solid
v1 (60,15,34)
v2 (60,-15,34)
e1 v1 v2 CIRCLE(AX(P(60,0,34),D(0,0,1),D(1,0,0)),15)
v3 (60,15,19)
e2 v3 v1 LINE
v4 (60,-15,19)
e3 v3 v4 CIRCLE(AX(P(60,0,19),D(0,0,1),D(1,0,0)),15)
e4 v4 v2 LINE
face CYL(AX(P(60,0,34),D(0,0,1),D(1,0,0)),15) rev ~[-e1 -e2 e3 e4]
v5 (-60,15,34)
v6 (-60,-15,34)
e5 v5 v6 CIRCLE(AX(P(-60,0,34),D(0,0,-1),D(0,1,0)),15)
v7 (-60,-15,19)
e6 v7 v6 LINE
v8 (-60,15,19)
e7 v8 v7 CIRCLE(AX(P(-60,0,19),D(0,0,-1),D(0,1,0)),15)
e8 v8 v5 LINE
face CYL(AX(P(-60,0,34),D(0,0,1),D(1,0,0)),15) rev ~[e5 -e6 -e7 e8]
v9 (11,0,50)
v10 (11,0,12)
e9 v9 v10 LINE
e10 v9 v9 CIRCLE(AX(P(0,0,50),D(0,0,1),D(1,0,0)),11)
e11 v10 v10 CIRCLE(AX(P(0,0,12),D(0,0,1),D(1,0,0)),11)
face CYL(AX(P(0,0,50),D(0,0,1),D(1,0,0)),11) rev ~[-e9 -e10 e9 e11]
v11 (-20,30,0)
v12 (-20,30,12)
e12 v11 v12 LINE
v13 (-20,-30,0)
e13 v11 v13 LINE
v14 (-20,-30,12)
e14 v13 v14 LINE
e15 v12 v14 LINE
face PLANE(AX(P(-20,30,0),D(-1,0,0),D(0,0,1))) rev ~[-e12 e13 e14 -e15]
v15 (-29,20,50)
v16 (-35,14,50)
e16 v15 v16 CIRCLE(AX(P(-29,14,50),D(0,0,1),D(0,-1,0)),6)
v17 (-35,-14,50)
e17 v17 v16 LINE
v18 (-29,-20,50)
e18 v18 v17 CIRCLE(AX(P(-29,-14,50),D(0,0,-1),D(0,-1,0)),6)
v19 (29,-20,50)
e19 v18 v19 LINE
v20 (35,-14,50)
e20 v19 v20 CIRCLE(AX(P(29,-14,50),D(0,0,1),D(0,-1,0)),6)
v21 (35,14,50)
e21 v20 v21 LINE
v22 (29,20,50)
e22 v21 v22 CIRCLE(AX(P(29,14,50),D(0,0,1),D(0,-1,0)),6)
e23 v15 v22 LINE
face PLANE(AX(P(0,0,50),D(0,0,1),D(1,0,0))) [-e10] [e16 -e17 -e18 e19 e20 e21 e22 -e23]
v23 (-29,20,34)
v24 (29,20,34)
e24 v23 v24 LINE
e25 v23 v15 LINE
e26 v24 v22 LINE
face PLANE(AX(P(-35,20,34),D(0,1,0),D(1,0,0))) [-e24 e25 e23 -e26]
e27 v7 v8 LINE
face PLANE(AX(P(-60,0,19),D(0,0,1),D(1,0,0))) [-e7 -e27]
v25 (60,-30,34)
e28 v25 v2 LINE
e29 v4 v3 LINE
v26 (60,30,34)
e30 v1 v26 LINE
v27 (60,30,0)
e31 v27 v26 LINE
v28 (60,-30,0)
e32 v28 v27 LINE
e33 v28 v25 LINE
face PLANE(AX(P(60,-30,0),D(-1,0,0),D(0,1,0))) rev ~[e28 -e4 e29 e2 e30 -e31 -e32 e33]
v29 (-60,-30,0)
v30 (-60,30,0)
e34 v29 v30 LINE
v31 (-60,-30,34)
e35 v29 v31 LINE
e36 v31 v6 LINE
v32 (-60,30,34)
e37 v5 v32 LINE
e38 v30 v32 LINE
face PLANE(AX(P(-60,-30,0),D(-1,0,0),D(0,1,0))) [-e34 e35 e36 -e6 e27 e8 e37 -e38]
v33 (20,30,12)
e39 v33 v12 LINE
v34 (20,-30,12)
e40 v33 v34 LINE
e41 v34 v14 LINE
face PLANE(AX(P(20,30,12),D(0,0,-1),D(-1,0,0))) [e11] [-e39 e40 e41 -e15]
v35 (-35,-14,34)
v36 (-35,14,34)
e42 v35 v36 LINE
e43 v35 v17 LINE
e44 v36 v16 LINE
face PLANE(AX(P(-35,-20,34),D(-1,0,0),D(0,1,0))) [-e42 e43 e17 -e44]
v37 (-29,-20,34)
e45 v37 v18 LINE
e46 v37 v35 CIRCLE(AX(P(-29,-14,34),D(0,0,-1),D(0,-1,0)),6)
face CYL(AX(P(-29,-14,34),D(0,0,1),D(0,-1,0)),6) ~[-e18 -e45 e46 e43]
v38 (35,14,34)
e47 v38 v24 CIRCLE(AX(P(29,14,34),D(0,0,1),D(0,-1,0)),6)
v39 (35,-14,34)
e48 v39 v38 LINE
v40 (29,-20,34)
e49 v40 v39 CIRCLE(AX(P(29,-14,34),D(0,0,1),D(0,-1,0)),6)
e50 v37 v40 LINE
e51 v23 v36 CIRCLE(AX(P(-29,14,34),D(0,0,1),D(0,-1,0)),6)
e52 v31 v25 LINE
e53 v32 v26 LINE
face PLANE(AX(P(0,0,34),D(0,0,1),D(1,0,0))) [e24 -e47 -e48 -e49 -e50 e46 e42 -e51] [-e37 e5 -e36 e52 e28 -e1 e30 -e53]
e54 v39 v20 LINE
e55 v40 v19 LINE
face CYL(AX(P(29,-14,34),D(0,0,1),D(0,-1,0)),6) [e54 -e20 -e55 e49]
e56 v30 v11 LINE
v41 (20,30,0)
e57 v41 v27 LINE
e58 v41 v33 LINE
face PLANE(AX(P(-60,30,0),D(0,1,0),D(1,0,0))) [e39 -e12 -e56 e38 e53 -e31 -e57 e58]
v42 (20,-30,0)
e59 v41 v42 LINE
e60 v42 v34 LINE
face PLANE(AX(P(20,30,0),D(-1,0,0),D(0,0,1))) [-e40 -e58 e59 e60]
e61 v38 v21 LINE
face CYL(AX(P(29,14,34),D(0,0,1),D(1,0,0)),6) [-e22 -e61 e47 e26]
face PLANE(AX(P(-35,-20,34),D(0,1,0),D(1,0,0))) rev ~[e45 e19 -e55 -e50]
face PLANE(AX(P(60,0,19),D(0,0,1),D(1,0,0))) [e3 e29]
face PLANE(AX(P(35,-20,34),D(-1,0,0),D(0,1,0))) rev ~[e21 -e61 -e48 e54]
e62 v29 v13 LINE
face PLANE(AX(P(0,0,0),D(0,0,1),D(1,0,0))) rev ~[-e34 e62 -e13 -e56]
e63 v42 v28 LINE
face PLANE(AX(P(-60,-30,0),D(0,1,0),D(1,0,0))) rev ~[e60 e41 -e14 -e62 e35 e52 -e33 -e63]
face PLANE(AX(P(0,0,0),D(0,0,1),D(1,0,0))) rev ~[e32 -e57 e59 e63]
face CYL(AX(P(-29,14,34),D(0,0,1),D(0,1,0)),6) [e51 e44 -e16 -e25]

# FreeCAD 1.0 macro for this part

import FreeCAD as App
import Part
import Sketcher


def edges_at(feature, points):
    """Names of the edges that pass closest to the given points."""
    edges = feature.Shape.Edges
    near = lambda p: min(range(len(edges)), key=lambda i: edges[i].distToShape(Part.Vertex(*p))[0])
    return sorted({f"Edge{near(p) + 1}" for p in points})


def add_polygon(sketch, points):
    """Adds a closed chain of lines whose ends are joined by coincident constraints."""
    first, n = sketch.GeometryCount, len(points)
    for a, b in zip(points, points[1:] + points[:1]):
        sketch.addGeometry(Part.LineSegment(App.Vector(*a, 0), App.Vector(*b, 0)), False)
    for i in range(n):
        sketch.addConstraint(Sketcher.Constraint("Coincident", first + i, 2, first + (i + 1) % n, 1))

doc = App.newDocument("Part")
body = doc.addObject("PartDesign::Body", "Body")

sketch1 = body.newObject("Sketcher::SketchObject", "Sketch")
sketch1.AttachmentSupport = (doc.getObject("XY_Plane"), [""])
sketch1.MapMode = "FlatFace"
add_polygon(sketch1, [(-60, 30), (-60, -30), (60, -30), (60, 30)])
sketch1.addConstraint(Sketcher.Constraint("Vertical", 0))
sketch1.addConstraint(Sketcher.Constraint("Horizontal", 1))
sketch1.addConstraint(Sketcher.Constraint("Vertical", 2))
sketch1.addConstraint(Sketcher.Constraint("Horizontal", 3))
sketch1.addConstraint(Sketcher.Constraint("Symmetric", 0, 2, 2, 2, -1, 1))
sketch1.addConstraint(Sketcher.Constraint("DistanceX", 1, 1, 1, 2, 120.0))
sketch1.addConstraint(Sketcher.Constraint("DistanceY", 0, 2, 0, 1, 60.0))
pad1 = body.newObject("PartDesign::Pad", "Pad")
pad1.Profile = sketch1
pad1.Length = 34

sketch2 = body.newObject("Sketcher::SketchObject", "Sketch001")
sketch2.AttachmentSupport = (doc.getObject("XY_Plane"), [""])
sketch2.MapMode = "FlatFace"
sketch2.AttachmentOffset = App.Placement(App.Vector(0, 0, 34), App.Rotation())
add_polygon(sketch2, [(-35, 20), (-35, -20), (35, -20), (35, 20)])
sketch2.addConstraint(Sketcher.Constraint("Vertical", 0))
sketch2.addConstraint(Sketcher.Constraint("Horizontal", 1))
sketch2.addConstraint(Sketcher.Constraint("Vertical", 2))
sketch2.addConstraint(Sketcher.Constraint("Horizontal", 3))
sketch2.addConstraint(Sketcher.Constraint("Symmetric", 0, 2, 2, 2, -1, 1))
sketch2.addConstraint(Sketcher.Constraint("DistanceX", 1, 1, 1, 2, 70.0))
sketch2.addConstraint(Sketcher.Constraint("DistanceY", 0, 2, 0, 1, 40.0))
pad2 = body.newObject("PartDesign::Pad", "Pad001")
pad2.Profile = sketch2
pad2.Length = 16
doc.recompute()

fillet = body.newObject("PartDesign::Fillet", "Fillet")
fillet.Base = (pad2, edges_at(pad2, [
    (-35, -20, 42),
    (-35, 20, 42),
    (35, -20, 42),
    (35, 20, 42),
]))
fillet.Radius = 6

sketch3 = body.newObject("Sketcher::SketchObject", "Sketch002")
sketch3.AttachmentSupport = (doc.getObject("XY_Plane"), [""])
sketch3.MapMode = "FlatFace"
sketch3.AttachmentOffset = App.Placement(App.Vector(0, 0, 50), App.Rotation())
sketch3.addGeometry(Part.Circle(App.Vector(0, 0, 0), App.Vector(0, 0, 1), 11), False)
sketch3.addConstraint(Sketcher.Constraint("Coincident", 0, 3, -1, 1))
sketch3.addConstraint(Sketcher.Constraint("Diameter", 0, 22.0))
pocket1 = body.newObject("PartDesign::Pocket", "Pocket")
pocket1.Profile = sketch3
pocket1.Type = "ThroughAll"

sketch4 = body.newObject("Sketcher::SketchObject", "Sketch003")
sketch4.AttachmentSupport = (doc.getObject("XY_Plane"), [""])
sketch4.MapMode = "FlatFace"
sketch4.AttachmentOffset = App.Placement(App.Vector(0, 0, 34), App.Rotation())
sketch4.addGeometry(Part.Circle(App.Vector(60, 0, 0), App.Vector(0, 0, 1), 15), False)
sketch4.addGeometry(Part.Circle(App.Vector(-60, 0, 0), App.Vector(0, 0, 1), 15), False)
sketch4.addConstraint(Sketcher.Constraint("Equal", 0, 1))
sketch4.addConstraint(Sketcher.Constraint("Symmetric", 0, 3, 1, 3, -1, 1))
sketch4.addConstraint(Sketcher.Constraint("PointOnObject", 0, 3, -1))
sketch4.addConstraint(Sketcher.Constraint("Diameter", 0, 30.0))
sketch4.addConstraint(Sketcher.Constraint("DistanceX", -1, 1, 0, 3, 60.0))
pocket2 = body.newObject("PartDesign::Pocket", "Pocket001")
pocket2.Profile = sketch4
pocket2.Length = 15

sketch5 = body.newObject("Sketcher::SketchObject", "Sketch004")
sketch5.AttachmentSupport = (doc.getObject("XZ_Plane"), [""])
sketch5.MapMode = "FlatFace"
sketch5.AttachmentOffset = App.Placement(App.Vector(0, 0, -30), App.Rotation())
add_polygon(sketch5, [(20, 12), (20, 0), (-20, 0), (-20, 12)])
sketch5.addConstraint(Sketcher.Constraint("Vertical", 0))
sketch5.addConstraint(Sketcher.Constraint("Horizontal", 1))
sketch5.addConstraint(Sketcher.Constraint("Vertical", 2))
sketch5.addConstraint(Sketcher.Constraint("Horizontal", 3))
sketch5.addConstraint(Sketcher.Constraint("Symmetric", 0, 2, 1, 2, -1, 1))
sketch5.addConstraint(Sketcher.Constraint("DistanceX", 1, 2, 1, 1, 40.0))
sketch5.addConstraint(Sketcher.Constraint("DistanceY", 0, 2, 0, 1, 12.0))
pocket3 = body.newObject("PartDesign::Pocket", "Pocket002")
pocket3.Profile = sketch5
pocket3.Type = "ThroughAll"
pocket3.Reversed = True

doc.recompute()
